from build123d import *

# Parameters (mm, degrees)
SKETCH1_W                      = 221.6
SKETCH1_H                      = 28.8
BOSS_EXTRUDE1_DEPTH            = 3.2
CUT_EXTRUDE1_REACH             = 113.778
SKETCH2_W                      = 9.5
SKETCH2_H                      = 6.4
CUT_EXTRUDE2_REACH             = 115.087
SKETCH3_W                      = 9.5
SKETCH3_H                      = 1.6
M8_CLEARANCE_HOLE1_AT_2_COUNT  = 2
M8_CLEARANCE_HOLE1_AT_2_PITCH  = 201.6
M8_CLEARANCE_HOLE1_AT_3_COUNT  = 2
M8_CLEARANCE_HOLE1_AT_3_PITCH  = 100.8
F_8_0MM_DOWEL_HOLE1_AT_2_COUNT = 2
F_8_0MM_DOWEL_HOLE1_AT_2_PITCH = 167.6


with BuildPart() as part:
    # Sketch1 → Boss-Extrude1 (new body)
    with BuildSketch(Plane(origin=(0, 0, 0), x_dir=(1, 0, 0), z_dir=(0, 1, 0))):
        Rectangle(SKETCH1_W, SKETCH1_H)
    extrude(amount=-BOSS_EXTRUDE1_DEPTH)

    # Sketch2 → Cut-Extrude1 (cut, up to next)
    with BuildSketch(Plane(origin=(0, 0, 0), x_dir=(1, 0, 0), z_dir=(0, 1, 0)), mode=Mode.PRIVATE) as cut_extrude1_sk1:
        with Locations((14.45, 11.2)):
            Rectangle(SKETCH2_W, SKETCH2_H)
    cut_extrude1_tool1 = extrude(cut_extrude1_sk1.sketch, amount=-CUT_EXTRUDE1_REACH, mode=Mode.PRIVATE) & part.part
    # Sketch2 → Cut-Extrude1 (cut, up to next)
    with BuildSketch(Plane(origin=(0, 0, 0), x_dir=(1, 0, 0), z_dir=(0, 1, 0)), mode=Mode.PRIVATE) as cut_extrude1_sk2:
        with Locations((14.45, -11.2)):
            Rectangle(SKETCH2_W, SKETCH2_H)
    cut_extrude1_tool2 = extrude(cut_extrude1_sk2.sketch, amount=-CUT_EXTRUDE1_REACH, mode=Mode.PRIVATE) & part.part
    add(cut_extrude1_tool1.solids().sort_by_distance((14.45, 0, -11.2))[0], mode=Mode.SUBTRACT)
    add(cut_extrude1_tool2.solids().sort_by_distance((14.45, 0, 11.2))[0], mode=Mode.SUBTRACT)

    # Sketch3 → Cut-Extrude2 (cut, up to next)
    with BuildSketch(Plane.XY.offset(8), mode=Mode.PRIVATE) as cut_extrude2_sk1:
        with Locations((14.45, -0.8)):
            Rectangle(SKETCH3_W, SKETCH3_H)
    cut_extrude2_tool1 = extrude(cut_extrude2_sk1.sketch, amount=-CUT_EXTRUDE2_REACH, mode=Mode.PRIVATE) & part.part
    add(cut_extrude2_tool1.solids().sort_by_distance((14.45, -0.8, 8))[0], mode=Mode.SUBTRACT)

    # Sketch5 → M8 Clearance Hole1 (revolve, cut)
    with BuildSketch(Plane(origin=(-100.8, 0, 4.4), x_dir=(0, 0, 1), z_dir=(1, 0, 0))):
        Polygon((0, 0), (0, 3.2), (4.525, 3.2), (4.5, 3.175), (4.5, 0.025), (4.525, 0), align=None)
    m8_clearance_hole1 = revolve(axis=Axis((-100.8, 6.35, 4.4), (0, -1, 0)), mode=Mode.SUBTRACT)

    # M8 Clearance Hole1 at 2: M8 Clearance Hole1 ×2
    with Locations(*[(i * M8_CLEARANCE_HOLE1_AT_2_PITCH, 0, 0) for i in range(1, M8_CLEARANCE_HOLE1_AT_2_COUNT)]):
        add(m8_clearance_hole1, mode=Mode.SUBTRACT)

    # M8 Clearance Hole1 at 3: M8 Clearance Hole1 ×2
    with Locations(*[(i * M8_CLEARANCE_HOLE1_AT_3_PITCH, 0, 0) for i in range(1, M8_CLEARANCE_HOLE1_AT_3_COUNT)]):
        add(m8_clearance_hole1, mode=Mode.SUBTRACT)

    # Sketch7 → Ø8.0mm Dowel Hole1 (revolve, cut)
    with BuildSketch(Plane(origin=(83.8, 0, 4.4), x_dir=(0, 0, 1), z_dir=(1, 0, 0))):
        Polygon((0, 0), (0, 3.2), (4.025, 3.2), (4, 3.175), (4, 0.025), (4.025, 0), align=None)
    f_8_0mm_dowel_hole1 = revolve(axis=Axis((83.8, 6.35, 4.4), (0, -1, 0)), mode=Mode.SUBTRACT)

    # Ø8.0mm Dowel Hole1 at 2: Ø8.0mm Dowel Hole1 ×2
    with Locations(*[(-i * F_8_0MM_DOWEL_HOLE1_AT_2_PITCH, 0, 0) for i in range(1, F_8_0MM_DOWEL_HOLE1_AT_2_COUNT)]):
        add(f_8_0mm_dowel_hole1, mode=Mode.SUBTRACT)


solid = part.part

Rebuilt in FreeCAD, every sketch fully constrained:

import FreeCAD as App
import Part
import Sketcher
from FreeCAD import Vector

doc = App.newDocument("Part")
body = doc.addObject("PartDesign::Body", "Body")

sketch1 = body.newObject("Sketcher::SketchObject", "Sketch")
sketch1.AttachmentSupport = (doc.getObject("XZ_Plane"), [""])
sketch1.MapMode = "FlatFace"
sketch1.addGeometry([
    Part.LineSegment(Vector(-111, -14, 0), Vector(-111, 14, 0)),
    Part.LineSegment(Vector(-111, 14, 0), Vector(111, 14, 0)),
    Part.LineSegment(Vector(111, 14, 0), Vector(111, -14, 0)),
    Part.LineSegment(Vector(111, -14, 0), Vector(-111, -14, 0)),
], False)
sketch1.addConstraint([
    Sketcher.Constraint("Coincident", 0, 2, 1, 1),
    Sketcher.Constraint("Coincident", 1, 2, 2, 1),
    Sketcher.Constraint("Coincident", 2, 2, 3, 1),
    Sketcher.Constraint("Coincident", 3, 2, 0, 1),
    Sketcher.Constraint("Vertical", 0),
    Sketcher.Constraint("Horizontal", 1),
    Sketcher.Constraint("Vertical", 2),
    Sketcher.Constraint("Horizontal", 3),
    Sketcher.Constraint("Symmetric", 0, 2, 2, 2, -1, 1),
    Sketcher.Constraint("DistanceX", 1, 1, 1, 2, 221.6),
    Sketcher.Constraint("DistanceY", 0, 1, 0, 2, 28.8),
])
pad1 = body.newObject("PartDesign::Pad", "Pad")
pad1.Profile = sketch1
pad1.Length = 3.2

sketch2 = body.newObject("Sketcher::SketchObject", "Sketch001")
sketch2.AttachmentSupport = (doc.getObject("XZ_Plane"), [""])
sketch2.MapMode = "FlatFace"
sketch2.addGeometry([
    Part.LineSegment(Vector(10, -14, 0), Vector(10, -8, 0)),
    Part.LineSegment(Vector(10, -8, 0), Vector(19, -8, 0)),
    Part.LineSegment(Vector(19, -8, 0), Vector(19, -14, 0)),
    Part.LineSegment(Vector(19, -14, 0), Vector(10, -14, 0)),
], False)
sketch2.addConstraint([
    Sketcher.Constraint("Coincident", 0, 2, 1, 1),
    Sketcher.Constraint("Coincident", 1, 2, 2, 1),
    Sketcher.Constraint("Coincident", 2, 2, 3, 1),
    Sketcher.Constraint("Coincident", 3, 2, 0, 1),
    Sketcher.Constraint("Vertical", 0),
    Sketcher.Constraint("Horizontal", 1),
    Sketcher.Constraint("Vertical", 2),
    Sketcher.Constraint("Horizontal", 3),
    Sketcher.Constraint("DistanceX", 1, 1, 1, 2, 9.5),
    Sketcher.Constraint("DistanceY", 0, 1, 0, 2, 6.4),
    Sketcher.Constraint("DistanceY", 0, 2, -1, 1, 8.0),
    Sketcher.Constraint("DistanceX", -1, 1, 0, 2, 9.7),
])
pocket1 = body.newObject("PartDesign::Pocket", "Pocket")
pocket1.Profile = sketch2
pocket1.Type = "UpToFirst"
pocket1.Reversed = True

sketch3 = body.newObject("Sketcher::SketchObject", "Sketch002")
sketch3.AttachmentSupport = (doc.getObject("XZ_Plane"), [""])
sketch3.MapMode = "FlatFace"
sketch3.addGeometry([
    Part.LineSegment(Vector(10, 8, 0), Vector(10, 14, 0)),
    Part.LineSegment(Vector(10, 14, 0), Vector(19, 14, 0)),
    Part.LineSegment(Vector(19, 14, 0), Vector(19, 8, 0)),
    Part.LineSegment(Vector(19, 8, 0), Vector(10, 8, 0)),
], False)
sketch3.addConstraint([
    Sketcher.Constraint("Coincident", 0, 2, 1, 1),
    Sketcher.Constraint("Coincident", 1, 2, 2, 1),
    Sketcher.Constraint("Coincident", 2, 2, 3, 1),
    Sketcher.Constraint("Coincident", 3, 2, 0, 1),
    Sketcher.Constraint("Vertical", 0),
    Sketcher.Constraint("Horizontal", 1),
    Sketcher.Constraint("Vertical", 2),
    Sketcher.Constraint("Horizontal", 3),
    Sketcher.Constraint("DistanceX", 1, 1, 1, 2, 9.5),
    Sketcher.Constraint("DistanceY", 0, 1, 0, 2, 6.4),
    Sketcher.Constraint("DistanceY", -1, 1, 2, 2, 8.0),
    Sketcher.Constraint("DistanceX", -1, 1, 0, 2, 9.7),
])
pocket2 = body.newObject("PartDesign::Pocket", "Pocket001")
pocket2.Profile = sketch3
pocket2.Type = "UpToFirst"
pocket2.Reversed = True

sketch4 = body.newObject("Sketcher::SketchObject", "Sketch003")
sketch4.AttachmentSupport = (doc.getObject("XY_Plane"), [""])
sketch4.MapMode = "FlatFace"
sketch4.AttachmentOffset = App.Placement(Vector(0, 0, 8), App.Rotation())
sketch4.addGeometry([
    Part.LineSegment(Vector(9.7, 0, 0), Vector(9.7, -1.6, 0)),
    Part.LineSegment(Vector(9.7, -1.6, 0), Vector(19.2, -1.6, 0)),
    Part.LineSegment(Vector(19.2, -1.6, 0), Vector(19.2, 0, 0)),
    Part.LineSegment(Vector(19.2, 0, 0), Vector(9.7, 0, 0)),
], False)
sketch4.addConstraint([
    Sketcher.Constraint("Coincident", 0, 2, 1, 1),
    Sketcher.Constraint("Coincident", 1, 2, 2, 1),
    Sketcher.Constraint("Coincident", 2, 2, 3, 1),
    Sketcher.Constraint("Coincident", 3, 2, 0, 1),
    Sketcher.Constraint("Vertical", 0),
    Sketcher.Constraint("Horizontal", 1),
    Sketcher.Constraint("Vertical", 2),
    Sketcher.Constraint("Horizontal", 3),
    Sketcher.Constraint("PointOnObject", 2, 2, -1),
    Sketcher.Constraint("DistanceX", 1, 1, 1, 2, 9.5),
    Sketcher.Constraint("DistanceY", 0, 2, 0, 1, 1.6),
    Sketcher.Constraint("DistanceX", -1, 1, 0, 2, 9.7),
])
pocket3 = body.newObject("PartDesign::Pocket", "Pocket002")
pocket3.Profile = sketch4
pocket3.Type = "UpToFirst"

sketch5 = body.newObject("Sketcher::SketchObject", "Sketch004")
sketch5.AttachmentSupport = (doc.getObject("YZ_Plane"), [""])
sketch5.MapMode = "FlatFace"
sketch5.AttachmentOffset = App.Placement(Vector(0, 0, -100.8), App.Rotation())
sketch5.addGeometry([
    Part.LineSegment(Vector(-3.2, 4.4, 0), Vector(0, 4.4, 0)),
    Part.LineSegment(Vector(0, 4.4, 0), Vector(0, 8.925, 0)),
    Part.LineSegment(Vector(0, 8.925, 0), Vector(-0.025, 8.9, 0)),
    Part.LineSegment(Vector(-0.025, 8.9, 0), Vector(-3.175, 8.9, 0)),
    Part.LineSegment(Vector(-3.175, 8.9, 0), Vector(-3.2, 8.925, 0)),
    Part.LineSegment(Vector(-3.2, 8.925, 0), Vector(-3.2, 4.4, 0)),
], False)
sketch5.addGeometry(Part.LineSegment(Vector(0, 4.4, 0), Vector(-3.2, 4.4, 0)), True)
sketch5.addConstraint([
    Sketcher.Constraint("Coincident", 0, 2, 1, 1),
    Sketcher.Constraint("Coincident", 1, 2, 2, 1),
    Sketcher.Constraint("Coincident", 2, 2, 3, 1),
    Sketcher.Constraint("Coincident", 3, 2, 4, 1),
    Sketcher.Constraint("Coincident", 4, 2, 5, 1),
    Sketcher.Constraint("Coincident", 5, 2, 0, 1),
    Sketcher.Constraint("Horizontal", 0),
    Sketcher.Constraint("Vertical", 1),
    Sketcher.Constraint("Horizontal", 3),
    Sketcher.Constraint("Vertical", 5),
    Sketcher.Constraint("Horizontal", 6),
    Sketcher.Constraint("Coincident", 6, 1, 0, 2),
    Sketcher.Constraint("PointOnObject", 0, 2, -2),
    Sketcher.Constraint("Perpendicular", 2, 4),
    Sketcher.Constraint("Horizontal", 1, 2, 4, 2),
    Sketcher.Constraint("Vertical", 4, 2, 6, 2),
    Sketcher.Constraint("Equal", 2, 4),
    Sketcher.Constraint("DistanceX", 0, 1, 0, 2, 3.2),
    Sketcher.Constraint("DistanceX", 3, 2, 3, 1, 3.15),
    Sketcher.Constraint("DistanceY", -1, 1, 0, 2, 4.4),
    Sketcher.Constraint("DistanceY", -1, 1, 2, 2, 8.9),
])
groove = body.newObject("PartDesign::Groove", "Groove")
groove.Profile = sketch5
groove.ReferenceAxis = (sketch5, ["Axis0"])
groove.Angle = 360
doc.recompute()

linearpattern = body.newObject("PartDesign::LinearPattern", "LinearPattern")
linearpattern.Originals = [groove]
linearpattern.Direction = (doc.getObject("X_Axis"), [""])
linearpattern.Mode = "offset"
linearpattern.Offset = 201.6
linearpattern.Occurrences = 2
body.Tip = linearpattern
doc.recompute()

linearpattern2 = body.newObject("PartDesign::LinearPattern", "LinearPattern001")
linearpattern2.Originals = [groove]
linearpattern2.Direction = (doc.getObject("X_Axis"), [""])
linearpattern2.Mode = "offset"
linearpattern2.Offset = 100.8
linearpattern2.Occurrences = 2
body.Tip = linearpattern2

sketch6 = body.newObject("Sketcher::SketchObject", "Sketch005")
sketch6.AttachmentSupport = (doc.getObject("YZ_Plane"), [""])
sketch6.MapMode = "FlatFace"
sketch6.AttachmentOffset = App.Placement(Vector(0, 0, 83.8), App.Rotation())
sketch6.addGeometry([
    Part.LineSegment(Vector(-3.2, 4.4, 0), Vector(0, 4.4, 0)),
    Part.LineSegment(Vector(0, 4.4, 0), Vector(0, 8.425, 0)),
    Part.LineSegment(Vector(0, 8.425, 0), Vector(-0.025, 8.4, 0)),
    Part.LineSegment(Vector(-0.025, 8.4, 0), Vector(-3.175, 8.4, 0)),
    Part.LineSegment(Vector(-3.175, 8.4, 0), Vector(-3.2, 8.425, 0)),
    Part.LineSegment(Vector(-3.2, 8.425, 0), Vector(-3.2, 4.4, 0)),
], False)
sketch6.addGeometry(Part.LineSegment(Vector(0, 4.4, 0), Vector(-3.2, 4.4, 0)), True)
sketch6.addConstraint([
    Sketcher.Constraint("Coincident", 0, 2, 1, 1),
    Sketcher.Constraint("Coincident", 1, 2, 2, 1),
    Sketcher.Constraint("Coincident", 2, 2, 3, 1),
    Sketcher.Constraint("Coincident", 3, 2, 4, 1),
    Sketcher.Constraint("Coincident", 4, 2, 5, 1),
    Sketcher.Constraint("Coincident", 5, 2, 0, 1),
    Sketcher.Constraint("Horizontal", 0),
    Sketcher.Constraint("Vertical", 1),
    Sketcher.Constraint("Horizontal", 3),
    Sketcher.Constraint("Vertical", 5),
    Sketcher.Constraint("Horizontal", 6),
    Sketcher.Constraint("Coincident", 6, 1, 0, 2),
    Sketcher.Constraint("PointOnObject", 0, 2, -2),
    Sketcher.Constraint("Perpendicular", 2, 4),
    Sketcher.Constraint("Horizontal", 1, 2, 4, 2),
    Sketcher.Constraint("Vertical", 4, 2, 6, 2),
    Sketcher.Constraint("Equal", 2, 4),
    Sketcher.Constraint("DistanceX", 0, 1, 0, 2, 3.2),
    Sketcher.Constraint("DistanceY", 0, 2, 2, 2, 4.0),
    Sketcher.Constraint("DistanceX", 3, 2, 3, 1, 3.15),
    Sketcher.Constraint("DistanceY", -1, 1, 0, 2, 4.4),
])
groove2 = body.newObject("PartDesign::Groove", "Groove001")
groove2.Profile = sketch6
groove2.ReferenceAxis = (sketch6, ["Axis0"])
groove2.Angle = 360
doc.recompute()

linearpattern3 = body.newObject("PartDesign::LinearPattern", "LinearPattern002")
linearpattern3.Originals = [groove2]
linearpattern3.Direction = (doc.getObject("X_Axis"), [""])
linearpattern3.Mode = "offset"
linearpattern3.Offset = 167.6
linearpattern3.Occurrences = 2
linearpattern3.Reversed = True
body.Tip = linearpattern3

doc.recompute()
